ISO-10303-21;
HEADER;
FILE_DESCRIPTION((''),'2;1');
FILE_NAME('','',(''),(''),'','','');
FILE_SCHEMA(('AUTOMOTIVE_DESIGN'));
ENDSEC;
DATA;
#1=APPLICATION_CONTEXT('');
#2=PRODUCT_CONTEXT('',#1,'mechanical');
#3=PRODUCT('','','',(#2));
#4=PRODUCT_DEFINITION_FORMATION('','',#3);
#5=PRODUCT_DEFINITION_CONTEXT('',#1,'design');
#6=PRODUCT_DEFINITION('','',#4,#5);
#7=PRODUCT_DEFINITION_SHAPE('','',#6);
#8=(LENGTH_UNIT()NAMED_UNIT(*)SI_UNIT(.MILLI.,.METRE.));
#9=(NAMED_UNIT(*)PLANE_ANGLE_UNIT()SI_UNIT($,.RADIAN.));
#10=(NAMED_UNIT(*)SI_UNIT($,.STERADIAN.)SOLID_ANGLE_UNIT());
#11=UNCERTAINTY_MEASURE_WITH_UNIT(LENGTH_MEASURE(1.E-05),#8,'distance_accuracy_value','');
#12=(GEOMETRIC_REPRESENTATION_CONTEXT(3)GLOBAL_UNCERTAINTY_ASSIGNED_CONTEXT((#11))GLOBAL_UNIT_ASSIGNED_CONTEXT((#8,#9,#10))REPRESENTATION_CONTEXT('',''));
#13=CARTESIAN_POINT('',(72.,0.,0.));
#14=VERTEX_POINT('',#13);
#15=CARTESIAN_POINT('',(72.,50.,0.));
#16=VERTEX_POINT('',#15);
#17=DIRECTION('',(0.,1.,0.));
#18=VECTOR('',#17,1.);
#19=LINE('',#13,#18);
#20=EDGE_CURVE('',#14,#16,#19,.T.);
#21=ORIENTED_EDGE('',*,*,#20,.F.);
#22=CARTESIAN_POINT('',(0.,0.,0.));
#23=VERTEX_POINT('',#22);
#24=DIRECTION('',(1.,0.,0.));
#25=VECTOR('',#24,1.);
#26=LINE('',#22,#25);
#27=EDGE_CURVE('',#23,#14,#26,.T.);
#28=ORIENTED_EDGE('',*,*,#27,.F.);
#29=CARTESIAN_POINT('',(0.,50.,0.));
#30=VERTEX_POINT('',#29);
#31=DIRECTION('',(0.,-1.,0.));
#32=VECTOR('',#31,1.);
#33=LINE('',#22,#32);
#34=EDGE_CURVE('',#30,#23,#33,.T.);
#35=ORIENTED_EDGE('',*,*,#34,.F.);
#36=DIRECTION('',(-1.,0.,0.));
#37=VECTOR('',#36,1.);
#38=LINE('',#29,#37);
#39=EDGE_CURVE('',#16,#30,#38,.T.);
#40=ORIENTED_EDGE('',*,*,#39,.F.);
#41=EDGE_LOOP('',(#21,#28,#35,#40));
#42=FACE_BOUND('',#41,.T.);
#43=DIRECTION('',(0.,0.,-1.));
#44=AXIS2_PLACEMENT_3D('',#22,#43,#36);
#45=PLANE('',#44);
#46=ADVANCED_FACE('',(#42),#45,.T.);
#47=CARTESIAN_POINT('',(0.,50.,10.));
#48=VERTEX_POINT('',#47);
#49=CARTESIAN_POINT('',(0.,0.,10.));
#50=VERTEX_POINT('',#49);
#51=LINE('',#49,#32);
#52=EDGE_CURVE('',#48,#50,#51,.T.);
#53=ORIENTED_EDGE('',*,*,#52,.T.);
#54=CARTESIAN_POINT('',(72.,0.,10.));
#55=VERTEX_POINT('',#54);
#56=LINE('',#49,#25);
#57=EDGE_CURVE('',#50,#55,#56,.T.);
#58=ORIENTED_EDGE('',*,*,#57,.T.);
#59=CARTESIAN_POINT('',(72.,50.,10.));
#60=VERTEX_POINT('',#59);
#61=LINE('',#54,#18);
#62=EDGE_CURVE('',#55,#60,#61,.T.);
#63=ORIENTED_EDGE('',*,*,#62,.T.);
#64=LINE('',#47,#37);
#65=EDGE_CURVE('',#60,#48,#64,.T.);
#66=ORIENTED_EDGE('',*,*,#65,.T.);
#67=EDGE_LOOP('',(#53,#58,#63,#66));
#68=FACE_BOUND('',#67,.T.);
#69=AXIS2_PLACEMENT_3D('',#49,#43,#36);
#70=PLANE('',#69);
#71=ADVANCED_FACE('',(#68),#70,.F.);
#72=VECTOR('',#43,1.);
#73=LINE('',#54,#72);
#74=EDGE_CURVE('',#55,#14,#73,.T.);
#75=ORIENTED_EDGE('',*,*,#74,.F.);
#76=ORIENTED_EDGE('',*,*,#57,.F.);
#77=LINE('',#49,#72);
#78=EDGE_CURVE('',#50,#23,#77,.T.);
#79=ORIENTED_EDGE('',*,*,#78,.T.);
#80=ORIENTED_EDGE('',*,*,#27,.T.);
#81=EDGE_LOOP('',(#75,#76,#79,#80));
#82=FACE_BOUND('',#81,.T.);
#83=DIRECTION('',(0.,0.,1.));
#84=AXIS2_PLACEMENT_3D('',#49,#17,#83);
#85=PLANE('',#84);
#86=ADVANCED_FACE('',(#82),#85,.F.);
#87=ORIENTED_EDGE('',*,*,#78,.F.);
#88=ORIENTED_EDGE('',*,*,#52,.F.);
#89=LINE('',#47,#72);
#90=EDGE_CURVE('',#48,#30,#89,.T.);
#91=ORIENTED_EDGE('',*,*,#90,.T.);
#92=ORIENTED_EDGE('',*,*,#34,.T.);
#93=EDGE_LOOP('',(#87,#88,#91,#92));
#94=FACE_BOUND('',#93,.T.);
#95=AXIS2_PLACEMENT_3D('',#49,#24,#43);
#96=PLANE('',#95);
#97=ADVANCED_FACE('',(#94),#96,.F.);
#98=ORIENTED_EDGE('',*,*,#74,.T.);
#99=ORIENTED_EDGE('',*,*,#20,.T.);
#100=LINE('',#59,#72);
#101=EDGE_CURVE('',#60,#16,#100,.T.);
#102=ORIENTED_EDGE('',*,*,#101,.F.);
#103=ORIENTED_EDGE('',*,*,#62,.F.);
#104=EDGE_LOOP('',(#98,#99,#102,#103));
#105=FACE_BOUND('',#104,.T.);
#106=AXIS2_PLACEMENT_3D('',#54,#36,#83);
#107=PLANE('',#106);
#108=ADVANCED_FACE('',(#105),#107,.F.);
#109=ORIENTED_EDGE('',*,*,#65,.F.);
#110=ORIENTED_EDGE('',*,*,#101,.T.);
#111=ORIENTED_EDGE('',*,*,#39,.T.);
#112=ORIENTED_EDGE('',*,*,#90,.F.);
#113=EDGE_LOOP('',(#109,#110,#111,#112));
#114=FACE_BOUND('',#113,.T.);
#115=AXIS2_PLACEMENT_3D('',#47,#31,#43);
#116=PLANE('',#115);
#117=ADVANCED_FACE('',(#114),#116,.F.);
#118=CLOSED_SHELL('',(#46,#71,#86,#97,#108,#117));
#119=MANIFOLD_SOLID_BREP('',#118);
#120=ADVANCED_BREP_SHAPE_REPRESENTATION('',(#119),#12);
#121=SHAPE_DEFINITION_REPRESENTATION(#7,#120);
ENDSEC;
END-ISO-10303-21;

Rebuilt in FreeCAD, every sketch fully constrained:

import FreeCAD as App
import Part
import Sketcher

doc = App.newDocument("Part")
body = doc.addObject("PartDesign::Body", "Body")

# Sketch on XY plane
sketch1 = doc.addObject("Sketcher::SketchObject", "Sketch")
body.addObject(sketch1)
sketch1.AttachmentSupport = (doc.XY_Plane, [""])
sketch1.MapMode = "FlatFace"
sketch1.addGeometry(Part.LineSegment(App.Vector(0, 50, 0), App.Vector(0, 0, 0)), False)
sketch1.addGeometry(Part.LineSegment(App.Vector(0, 0, 0), App.Vector(72, 0, 0)), False)
sketch1.addGeometry(Part.LineSegment(App.Vector(72, 0, 0), App.Vector(72, 50, 0)), False)
sketch1.addGeometry(Part.LineSegment(App.Vector(72, 50, 0), App.Vector(0, 50, 0)), False)
sketch1.addConstraint(Sketcher.Constraint("Coincident", 0, 2, 1, 1))
sketch1.addConstraint(Sketcher.Constraint("Coincident", 1, 2, 2, 1))
sketch1.addConstraint(Sketcher.Constraint("Coincident", 2, 2, 3, 1))
sketch1.addConstraint(Sketcher.Constraint("Coincident", 3, 2, 0, 1))
sketch1.addConstraint(Sketcher.Constraint("Vertical", 0))
sketch1.addConstraint(Sketcher.Constraint("Horizontal", 1))
sketch1.addConstraint(Sketcher.Constraint("Vertical", 2))
sketch1.addConstraint(Sketcher.Constraint("Horizontal", 3))
sketch1.addConstraint(Sketcher.Constraint("Coincident", 0, 2, -1, 1))
sketch1.addConstraint(Sketcher.Constraint("DistanceX", 1, 1, 1, 2, 72.0))
sketch1.addConstraint(Sketcher.Constraint("DistanceY", 0, 2, 0, 1, 50.0))
pad1 = doc.addObject("PartDesign::Pad", "Pad")
body.addObject(pad1)
pad1.Profile = sketch1
pad1.Length = 10

doc.recompute()
